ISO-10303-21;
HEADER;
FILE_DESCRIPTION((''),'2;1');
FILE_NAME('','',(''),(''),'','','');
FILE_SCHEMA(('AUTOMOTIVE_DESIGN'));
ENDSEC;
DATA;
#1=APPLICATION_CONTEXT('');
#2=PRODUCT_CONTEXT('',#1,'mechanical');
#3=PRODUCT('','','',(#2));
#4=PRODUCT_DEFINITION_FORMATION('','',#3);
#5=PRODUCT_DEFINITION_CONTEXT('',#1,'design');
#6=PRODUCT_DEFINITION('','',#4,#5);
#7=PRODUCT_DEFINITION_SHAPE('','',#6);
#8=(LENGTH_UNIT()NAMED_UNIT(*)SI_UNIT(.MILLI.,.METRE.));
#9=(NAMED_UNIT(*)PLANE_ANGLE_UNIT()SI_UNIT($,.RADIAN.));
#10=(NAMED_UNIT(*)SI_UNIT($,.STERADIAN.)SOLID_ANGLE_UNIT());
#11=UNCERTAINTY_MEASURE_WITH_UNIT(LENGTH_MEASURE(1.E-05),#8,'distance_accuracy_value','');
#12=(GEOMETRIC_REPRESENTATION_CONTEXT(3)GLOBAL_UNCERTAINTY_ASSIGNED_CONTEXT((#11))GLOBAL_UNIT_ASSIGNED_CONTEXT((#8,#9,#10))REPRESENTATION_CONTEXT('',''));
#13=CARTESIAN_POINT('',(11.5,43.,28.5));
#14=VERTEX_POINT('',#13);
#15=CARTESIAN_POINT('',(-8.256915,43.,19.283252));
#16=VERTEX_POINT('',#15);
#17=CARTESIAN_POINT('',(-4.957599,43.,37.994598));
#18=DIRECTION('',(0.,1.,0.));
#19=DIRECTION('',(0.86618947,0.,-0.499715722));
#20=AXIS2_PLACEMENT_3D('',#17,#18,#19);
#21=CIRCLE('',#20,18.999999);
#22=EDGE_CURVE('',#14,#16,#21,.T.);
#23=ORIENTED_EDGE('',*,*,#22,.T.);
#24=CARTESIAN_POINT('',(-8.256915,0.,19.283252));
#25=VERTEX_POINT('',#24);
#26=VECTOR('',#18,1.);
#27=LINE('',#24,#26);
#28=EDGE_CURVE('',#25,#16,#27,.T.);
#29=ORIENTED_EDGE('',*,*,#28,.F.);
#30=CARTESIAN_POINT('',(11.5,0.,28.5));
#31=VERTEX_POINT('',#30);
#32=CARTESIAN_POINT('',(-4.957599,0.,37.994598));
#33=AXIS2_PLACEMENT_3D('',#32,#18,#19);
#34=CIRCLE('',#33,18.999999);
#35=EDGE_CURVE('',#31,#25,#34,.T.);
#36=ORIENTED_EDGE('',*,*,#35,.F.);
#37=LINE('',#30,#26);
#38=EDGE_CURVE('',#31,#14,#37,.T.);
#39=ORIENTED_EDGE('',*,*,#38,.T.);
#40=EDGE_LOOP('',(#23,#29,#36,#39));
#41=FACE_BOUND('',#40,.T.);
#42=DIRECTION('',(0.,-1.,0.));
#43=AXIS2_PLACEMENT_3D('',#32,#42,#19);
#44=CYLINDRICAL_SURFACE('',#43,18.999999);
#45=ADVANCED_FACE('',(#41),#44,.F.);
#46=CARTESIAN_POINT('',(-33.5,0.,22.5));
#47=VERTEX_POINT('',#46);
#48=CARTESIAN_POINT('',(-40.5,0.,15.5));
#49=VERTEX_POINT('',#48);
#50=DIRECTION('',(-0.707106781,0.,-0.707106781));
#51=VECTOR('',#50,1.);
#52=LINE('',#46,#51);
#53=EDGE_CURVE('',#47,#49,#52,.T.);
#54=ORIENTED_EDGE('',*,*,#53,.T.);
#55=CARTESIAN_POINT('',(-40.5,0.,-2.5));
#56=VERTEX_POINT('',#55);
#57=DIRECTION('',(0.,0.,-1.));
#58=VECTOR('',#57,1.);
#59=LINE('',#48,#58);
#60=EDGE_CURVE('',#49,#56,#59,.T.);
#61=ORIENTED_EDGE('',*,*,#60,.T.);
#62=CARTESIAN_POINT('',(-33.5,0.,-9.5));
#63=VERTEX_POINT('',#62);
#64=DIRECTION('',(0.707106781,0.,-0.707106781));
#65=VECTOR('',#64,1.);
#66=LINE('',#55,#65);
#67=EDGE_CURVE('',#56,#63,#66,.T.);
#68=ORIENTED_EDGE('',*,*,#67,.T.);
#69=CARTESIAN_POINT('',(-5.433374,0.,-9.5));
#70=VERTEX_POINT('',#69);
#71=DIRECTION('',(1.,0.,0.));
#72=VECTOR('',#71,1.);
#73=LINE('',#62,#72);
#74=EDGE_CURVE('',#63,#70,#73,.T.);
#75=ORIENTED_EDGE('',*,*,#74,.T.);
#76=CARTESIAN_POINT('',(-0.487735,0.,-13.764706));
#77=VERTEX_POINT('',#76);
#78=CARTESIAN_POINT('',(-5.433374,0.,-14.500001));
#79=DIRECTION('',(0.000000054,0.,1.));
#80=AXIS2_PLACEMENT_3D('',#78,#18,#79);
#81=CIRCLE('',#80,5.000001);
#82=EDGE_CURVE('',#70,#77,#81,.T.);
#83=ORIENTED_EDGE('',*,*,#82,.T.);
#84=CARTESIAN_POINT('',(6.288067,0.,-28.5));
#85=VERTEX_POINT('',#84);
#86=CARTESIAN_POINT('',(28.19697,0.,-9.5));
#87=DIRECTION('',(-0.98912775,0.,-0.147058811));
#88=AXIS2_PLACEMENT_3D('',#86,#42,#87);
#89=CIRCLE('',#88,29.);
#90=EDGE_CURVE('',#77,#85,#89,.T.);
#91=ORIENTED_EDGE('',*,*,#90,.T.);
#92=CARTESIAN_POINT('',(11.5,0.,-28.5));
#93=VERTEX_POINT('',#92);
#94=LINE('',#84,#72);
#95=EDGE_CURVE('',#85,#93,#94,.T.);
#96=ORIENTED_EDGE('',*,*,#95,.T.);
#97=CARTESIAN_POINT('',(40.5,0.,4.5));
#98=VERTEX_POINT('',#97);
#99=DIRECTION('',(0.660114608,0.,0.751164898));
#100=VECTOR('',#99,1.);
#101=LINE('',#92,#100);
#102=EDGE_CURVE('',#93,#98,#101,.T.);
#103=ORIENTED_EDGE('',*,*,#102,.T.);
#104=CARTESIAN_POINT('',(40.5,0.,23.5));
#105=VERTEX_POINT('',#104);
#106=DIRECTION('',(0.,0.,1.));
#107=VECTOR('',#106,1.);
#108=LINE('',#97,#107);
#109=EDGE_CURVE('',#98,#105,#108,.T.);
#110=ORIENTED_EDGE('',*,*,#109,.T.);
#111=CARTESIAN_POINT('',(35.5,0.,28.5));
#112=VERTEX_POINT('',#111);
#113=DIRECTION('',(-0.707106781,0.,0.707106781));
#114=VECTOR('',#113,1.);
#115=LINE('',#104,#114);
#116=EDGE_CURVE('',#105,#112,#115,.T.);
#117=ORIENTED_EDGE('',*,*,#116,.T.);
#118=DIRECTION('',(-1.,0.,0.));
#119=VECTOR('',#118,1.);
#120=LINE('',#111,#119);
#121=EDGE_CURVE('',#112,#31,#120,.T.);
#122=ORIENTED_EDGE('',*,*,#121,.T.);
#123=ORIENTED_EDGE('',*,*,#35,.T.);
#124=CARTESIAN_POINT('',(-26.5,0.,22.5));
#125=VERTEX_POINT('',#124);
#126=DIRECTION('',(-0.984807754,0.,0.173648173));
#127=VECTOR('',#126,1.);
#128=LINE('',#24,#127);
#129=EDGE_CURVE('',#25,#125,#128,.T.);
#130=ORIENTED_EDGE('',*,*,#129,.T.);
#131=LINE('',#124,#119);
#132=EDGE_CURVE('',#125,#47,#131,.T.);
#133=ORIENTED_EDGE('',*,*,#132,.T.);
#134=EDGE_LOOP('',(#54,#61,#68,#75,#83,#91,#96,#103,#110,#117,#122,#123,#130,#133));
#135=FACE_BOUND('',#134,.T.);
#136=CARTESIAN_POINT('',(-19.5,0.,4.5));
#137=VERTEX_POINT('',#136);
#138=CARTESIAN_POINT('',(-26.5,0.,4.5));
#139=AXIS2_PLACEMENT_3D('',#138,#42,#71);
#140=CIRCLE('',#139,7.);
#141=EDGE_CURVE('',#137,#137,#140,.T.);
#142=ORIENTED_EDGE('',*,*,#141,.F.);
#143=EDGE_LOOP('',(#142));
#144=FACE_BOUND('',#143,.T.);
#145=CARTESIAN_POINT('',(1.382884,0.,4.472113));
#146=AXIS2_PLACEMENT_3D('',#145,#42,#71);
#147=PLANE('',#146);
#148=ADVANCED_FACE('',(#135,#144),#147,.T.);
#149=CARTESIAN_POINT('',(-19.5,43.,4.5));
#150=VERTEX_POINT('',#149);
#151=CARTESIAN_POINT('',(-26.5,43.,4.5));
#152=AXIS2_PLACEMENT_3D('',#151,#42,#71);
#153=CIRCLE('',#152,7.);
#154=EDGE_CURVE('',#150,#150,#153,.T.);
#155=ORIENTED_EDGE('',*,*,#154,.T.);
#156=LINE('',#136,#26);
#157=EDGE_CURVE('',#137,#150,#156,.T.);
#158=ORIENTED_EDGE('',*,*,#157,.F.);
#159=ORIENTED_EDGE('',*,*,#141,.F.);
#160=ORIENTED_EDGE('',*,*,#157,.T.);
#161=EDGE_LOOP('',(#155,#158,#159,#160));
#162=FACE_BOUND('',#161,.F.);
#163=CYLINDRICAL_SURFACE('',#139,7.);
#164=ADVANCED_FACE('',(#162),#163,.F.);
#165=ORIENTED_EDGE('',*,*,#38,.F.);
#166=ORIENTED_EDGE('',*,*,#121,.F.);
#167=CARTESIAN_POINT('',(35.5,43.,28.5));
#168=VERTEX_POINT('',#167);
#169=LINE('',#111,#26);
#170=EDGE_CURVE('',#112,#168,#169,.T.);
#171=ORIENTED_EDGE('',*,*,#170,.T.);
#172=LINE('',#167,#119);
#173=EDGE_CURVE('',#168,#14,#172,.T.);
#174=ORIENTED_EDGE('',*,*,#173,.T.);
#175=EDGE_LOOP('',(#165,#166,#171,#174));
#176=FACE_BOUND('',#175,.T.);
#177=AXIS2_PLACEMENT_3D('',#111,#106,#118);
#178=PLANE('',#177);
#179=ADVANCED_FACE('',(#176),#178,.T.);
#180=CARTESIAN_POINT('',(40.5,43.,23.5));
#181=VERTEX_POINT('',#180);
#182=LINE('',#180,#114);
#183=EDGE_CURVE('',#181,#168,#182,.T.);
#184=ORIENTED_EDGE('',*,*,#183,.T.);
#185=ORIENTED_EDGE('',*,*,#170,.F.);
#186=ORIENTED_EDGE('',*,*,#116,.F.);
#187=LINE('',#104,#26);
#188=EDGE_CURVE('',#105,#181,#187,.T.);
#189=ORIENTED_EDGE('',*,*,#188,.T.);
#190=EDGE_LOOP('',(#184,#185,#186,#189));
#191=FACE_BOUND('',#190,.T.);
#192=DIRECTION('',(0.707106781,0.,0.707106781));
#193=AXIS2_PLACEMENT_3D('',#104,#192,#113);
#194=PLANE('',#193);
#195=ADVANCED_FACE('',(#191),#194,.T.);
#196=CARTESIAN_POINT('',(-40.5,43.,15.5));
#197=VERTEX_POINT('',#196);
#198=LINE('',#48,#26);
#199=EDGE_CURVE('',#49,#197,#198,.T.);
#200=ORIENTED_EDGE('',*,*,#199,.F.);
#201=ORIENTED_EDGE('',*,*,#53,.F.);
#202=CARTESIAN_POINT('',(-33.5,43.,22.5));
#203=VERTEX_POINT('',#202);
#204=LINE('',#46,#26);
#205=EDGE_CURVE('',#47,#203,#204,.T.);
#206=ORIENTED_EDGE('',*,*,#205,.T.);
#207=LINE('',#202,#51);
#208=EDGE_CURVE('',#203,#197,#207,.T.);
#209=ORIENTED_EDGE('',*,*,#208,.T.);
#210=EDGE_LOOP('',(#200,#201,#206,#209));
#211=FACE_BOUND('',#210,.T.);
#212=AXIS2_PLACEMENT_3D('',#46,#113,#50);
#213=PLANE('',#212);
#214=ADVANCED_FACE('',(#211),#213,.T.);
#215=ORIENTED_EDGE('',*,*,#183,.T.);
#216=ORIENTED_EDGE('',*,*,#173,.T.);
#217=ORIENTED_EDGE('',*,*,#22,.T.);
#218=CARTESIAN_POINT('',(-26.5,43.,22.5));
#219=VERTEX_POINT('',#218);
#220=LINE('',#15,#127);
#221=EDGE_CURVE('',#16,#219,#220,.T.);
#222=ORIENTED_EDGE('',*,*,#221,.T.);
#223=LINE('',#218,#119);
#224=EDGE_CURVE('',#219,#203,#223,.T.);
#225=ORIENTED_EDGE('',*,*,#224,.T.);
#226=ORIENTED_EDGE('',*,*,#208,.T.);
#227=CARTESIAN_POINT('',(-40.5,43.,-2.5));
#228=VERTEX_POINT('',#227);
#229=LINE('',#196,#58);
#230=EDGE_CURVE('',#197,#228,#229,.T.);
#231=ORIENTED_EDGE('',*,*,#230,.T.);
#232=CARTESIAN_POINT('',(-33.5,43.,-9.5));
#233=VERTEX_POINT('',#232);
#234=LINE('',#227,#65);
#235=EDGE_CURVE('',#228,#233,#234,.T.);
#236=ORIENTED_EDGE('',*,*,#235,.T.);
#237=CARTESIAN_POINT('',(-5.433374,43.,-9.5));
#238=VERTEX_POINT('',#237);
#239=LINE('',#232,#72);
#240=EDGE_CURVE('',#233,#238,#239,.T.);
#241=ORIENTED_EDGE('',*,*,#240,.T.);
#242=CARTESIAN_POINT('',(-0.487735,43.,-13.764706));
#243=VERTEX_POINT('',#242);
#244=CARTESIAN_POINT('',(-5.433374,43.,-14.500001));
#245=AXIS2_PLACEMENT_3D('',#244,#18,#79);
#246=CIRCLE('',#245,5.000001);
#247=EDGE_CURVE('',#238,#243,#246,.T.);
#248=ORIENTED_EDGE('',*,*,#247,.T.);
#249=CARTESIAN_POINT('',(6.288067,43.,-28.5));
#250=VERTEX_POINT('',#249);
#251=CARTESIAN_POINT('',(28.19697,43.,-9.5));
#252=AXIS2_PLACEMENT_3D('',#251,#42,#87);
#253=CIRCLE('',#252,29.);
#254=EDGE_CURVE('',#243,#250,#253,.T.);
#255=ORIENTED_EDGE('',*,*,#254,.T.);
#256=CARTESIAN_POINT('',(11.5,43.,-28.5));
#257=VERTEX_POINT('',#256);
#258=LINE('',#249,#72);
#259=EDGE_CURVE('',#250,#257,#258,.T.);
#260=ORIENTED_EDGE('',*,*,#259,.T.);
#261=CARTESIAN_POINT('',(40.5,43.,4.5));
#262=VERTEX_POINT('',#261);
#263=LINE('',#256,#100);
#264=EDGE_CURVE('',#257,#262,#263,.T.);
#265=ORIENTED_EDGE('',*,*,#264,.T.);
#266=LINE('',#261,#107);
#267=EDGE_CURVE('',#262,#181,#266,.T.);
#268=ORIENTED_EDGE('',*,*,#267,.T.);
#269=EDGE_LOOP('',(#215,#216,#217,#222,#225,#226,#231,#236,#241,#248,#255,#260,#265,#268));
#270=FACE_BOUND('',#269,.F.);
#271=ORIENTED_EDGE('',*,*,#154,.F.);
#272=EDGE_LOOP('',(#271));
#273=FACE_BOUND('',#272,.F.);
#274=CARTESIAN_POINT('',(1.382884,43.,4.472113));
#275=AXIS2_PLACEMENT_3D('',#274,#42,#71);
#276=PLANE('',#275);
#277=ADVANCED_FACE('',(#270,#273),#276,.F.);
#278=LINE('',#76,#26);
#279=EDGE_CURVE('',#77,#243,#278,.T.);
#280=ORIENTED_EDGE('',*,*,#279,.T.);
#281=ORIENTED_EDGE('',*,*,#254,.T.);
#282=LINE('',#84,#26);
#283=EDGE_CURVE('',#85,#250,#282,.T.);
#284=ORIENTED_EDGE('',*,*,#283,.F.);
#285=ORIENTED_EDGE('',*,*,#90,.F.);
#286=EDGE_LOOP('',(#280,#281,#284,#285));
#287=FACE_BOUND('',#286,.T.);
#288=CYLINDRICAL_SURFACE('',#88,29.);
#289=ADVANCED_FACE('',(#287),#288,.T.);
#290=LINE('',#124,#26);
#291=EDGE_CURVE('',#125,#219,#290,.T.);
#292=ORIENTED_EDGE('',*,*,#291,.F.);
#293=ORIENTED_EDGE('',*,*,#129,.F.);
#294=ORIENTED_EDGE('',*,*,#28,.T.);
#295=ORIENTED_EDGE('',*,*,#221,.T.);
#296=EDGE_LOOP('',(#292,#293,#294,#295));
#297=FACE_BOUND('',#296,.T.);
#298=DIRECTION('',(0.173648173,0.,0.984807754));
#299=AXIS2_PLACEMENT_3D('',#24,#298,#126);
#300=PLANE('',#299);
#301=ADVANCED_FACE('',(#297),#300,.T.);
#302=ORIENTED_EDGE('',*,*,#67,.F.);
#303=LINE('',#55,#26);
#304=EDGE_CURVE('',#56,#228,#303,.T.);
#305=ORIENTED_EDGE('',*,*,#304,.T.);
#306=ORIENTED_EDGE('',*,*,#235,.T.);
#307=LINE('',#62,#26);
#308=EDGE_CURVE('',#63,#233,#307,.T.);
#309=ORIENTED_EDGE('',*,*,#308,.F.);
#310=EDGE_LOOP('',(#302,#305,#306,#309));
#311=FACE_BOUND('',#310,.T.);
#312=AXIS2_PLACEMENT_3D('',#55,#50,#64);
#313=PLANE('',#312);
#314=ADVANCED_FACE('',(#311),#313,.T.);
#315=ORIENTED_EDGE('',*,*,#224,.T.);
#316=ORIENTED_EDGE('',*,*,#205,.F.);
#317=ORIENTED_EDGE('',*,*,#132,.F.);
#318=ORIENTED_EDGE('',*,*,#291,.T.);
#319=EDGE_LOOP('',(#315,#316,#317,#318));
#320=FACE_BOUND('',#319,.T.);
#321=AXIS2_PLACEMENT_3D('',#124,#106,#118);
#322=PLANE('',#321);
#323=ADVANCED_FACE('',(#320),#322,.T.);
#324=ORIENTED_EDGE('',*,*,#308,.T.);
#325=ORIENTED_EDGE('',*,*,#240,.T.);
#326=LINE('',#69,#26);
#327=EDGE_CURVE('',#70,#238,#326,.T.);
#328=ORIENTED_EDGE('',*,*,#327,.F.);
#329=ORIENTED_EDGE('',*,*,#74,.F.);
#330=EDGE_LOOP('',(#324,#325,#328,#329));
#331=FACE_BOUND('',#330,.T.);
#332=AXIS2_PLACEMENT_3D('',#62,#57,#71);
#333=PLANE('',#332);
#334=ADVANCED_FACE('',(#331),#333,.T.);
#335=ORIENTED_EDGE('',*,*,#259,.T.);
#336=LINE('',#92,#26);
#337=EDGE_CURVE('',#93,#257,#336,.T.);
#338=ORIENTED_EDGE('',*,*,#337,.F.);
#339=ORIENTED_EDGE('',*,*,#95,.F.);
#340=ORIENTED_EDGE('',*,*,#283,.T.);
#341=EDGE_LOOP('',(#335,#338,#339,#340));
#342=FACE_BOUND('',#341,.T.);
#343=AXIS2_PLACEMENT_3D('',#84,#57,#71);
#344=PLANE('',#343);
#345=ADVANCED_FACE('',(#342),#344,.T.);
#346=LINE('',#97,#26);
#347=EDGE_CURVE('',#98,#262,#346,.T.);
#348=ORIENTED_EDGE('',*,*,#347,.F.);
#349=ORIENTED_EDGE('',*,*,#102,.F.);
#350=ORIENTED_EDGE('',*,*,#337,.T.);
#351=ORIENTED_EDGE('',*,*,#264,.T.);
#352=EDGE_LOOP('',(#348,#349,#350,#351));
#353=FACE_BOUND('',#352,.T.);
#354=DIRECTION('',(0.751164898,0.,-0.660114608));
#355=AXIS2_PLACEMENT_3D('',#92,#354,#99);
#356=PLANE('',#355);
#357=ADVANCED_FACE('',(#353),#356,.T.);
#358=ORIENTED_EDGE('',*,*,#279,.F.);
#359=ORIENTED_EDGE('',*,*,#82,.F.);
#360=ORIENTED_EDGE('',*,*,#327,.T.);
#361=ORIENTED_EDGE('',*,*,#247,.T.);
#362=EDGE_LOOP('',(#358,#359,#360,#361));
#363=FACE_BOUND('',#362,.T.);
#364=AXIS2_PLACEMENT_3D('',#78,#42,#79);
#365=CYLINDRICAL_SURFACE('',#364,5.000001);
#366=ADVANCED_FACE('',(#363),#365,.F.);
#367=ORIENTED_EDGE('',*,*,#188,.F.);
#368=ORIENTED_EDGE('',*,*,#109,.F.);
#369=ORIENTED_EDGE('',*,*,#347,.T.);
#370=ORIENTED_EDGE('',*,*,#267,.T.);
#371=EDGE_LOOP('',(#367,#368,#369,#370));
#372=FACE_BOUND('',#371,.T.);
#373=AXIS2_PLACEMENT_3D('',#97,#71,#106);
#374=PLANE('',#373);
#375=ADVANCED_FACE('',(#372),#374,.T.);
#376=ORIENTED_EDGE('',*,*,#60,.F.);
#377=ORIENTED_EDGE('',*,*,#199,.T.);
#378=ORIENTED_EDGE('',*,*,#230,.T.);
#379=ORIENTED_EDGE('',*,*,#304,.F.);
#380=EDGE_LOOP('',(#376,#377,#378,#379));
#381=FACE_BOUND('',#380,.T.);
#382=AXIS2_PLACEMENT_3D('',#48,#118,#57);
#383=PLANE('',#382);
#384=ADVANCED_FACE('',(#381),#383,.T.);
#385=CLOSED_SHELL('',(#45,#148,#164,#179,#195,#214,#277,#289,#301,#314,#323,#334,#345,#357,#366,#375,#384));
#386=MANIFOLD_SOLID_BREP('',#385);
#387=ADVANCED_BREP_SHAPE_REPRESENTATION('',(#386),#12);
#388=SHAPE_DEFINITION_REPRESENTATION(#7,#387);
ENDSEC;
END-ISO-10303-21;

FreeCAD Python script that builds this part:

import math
import FreeCAD as App
import Part
import Sketcher
Q = App.Units.Quantity

doc = App.newDocument("Part")
body = doc.addObject("PartDesign::Body", "Body")

# Sketch on XZ plane
sketch1 = doc.addObject("Sketcher::SketchObject", "Sketch")
body.addObject(sketch1)
sketch1.AttachmentSupport = (doc.XZ_Plane, [""])
sketch1.MapMode = "FlatFace"
sketch1.addGeometry(Part.LineSegment(App.Vector(40, 24, 0), App.Vector(36, 28, 0)), False)
sketch1.addGeometry(Part.LineSegment(App.Vector(36, 28, 0), App.Vector(12, 28, 0)), False)
sketch1.addGeometry(Part.ArcOfCircle(Part.Circle(App.Vector(-5, 38, 0), App.Vector(0, 0, 1), 19), math.radians(-100), math.radians(-30)), False)
sketch1.addGeometry(Part.LineSegment(App.Vector(-8, 19, 0), App.Vector(-26, 22, 0)), False)
sketch1.addGeometry(Part.LineSegment(App.Vector(-26, 22, 0), App.Vector(-34, 22, 0)), False)
sketch1.addGeometry(Part.LineSegment(App.Vector(-34, 22, 0), App.Vector(-40, 16, 0)), False)
sketch1.addGeometry(Part.LineSegment(App.Vector(-40, 16, 0), App.Vector(-40, -2, 0)), False)
sketch1.addGeometry(Part.LineSegment(App.Vector(-40, -2, 0), App.Vector(-34, -10, 0)), False)
sketch1.addGeometry(Part.LineSegment(App.Vector(-34, -10, 0), App.Vector(-5, -10, 0)), False)
sketch1.addGeometry(Part.ArcOfCircle(Part.Circle(App.Vector(-5, -15, 0), App.Vector(0, 0, 1), 5), math.radians(8), math.radians(90)), False)
sketch1.addGeometry(Part.ArcOfCircle(Part.Circle(App.Vector(28, -10, 0), App.Vector(0, 0, 1), 29), math.radians(-172), math.radians(-139)), False)
sketch1.addGeometry(Part.LineSegment(App.Vector(6, -28, 0), App.Vector(12, -28, 0)), False)
sketch1.addGeometry(Part.LineSegment(App.Vector(12, -28, 0), App.Vector(40, 4, 0)), False)
sketch1.addGeometry(Part.LineSegment(App.Vector(40, 4, 0), App.Vector(40, 24, 0)), False)
sketch1.addGeometry(Part.Circle(App.Vector(-26, 4, 0), App.Vector(0, 0, 1), 7), False)
sketch1.addConstraint(Sketcher.Constraint("Coincident", 0, 2, 1, 1))
sketch1.addConstraint(Sketcher.Constraint("Coincident", 1, 2, 2, 2))
sketch1.addConstraint(Sketcher.Constraint("Tangent", 2, 1, 3, 1))
sketch1.addConstraint(Sketcher.Constraint("Coincident", 3, 2, 4, 1))
sketch1.addConstraint(Sketcher.Constraint("Coincident", 4, 2, 5, 1))
sketch1.addConstraint(Sketcher.Constraint("Coincident", 5, 2, 6, 1))
sketch1.addConstraint(Sketcher.Constraint("Coincident", 6, 2, 7, 1))
sketch1.addConstraint(Sketcher.Constraint("Coincident", 7, 2, 8, 1))
sketch1.addConstraint(Sketcher.Constraint("Tangent", 8, 2, 9, 2))
sketch1.addConstraint(Sketcher.Constraint("Tangent", 9, 1, 10, 1))
sketch1.addConstraint(Sketcher.Constraint("Coincident", 10, 2, 11, 1))
sketch1.addConstraint(Sketcher.Constraint("Coincident", 11, 2, 12, 1))
sketch1.addConstraint(Sketcher.Constraint("Coincident", 12, 2, 13, 1))
sketch1.addConstraint(Sketcher.Constraint("Coincident", 13, 2, 0, 1))
sketch1.addConstraint(Sketcher.Constraint("Horizontal", 1))
sketch1.addConstraint(Sketcher.Constraint("Horizontal", 4))
sketch1.addConstraint(Sketcher.Constraint("Vertical", 6))
sketch1.addConstraint(Sketcher.Constraint("Horizontal", 8))
sketch1.addConstraint(Sketcher.Constraint("Horizontal", 11))
sketch1.addConstraint(Sketcher.Constraint("Vertical", 13))
sketch1.addConstraint(Sketcher.Constraint("Symmetric", 1, 2, 11, 2, -1))
sketch1.addConstraint(Sketcher.Constraint("Perpendicular", 0, 5))
sketch1.addConstraint(Sketcher.Constraint("Perpendicular", 5, 7))
sketch1.addConstraint(Sketcher.Constraint("Horizontal", 10, 3, 7, 2))
sketch1.addConstraint(Sketcher.Constraint("Horizontal", 14, 3, 12, 2))
sketch1.addConstraint(Sketcher.Constraint("Vertical", 14, 3, 3, 2))
sketch1.addConstraint(Sketcher.Constraint("Vertical", 4, 2, 7, 2))
sketch1.addConstraint(Sketcher.Constraint("Equal", 5, 7))
sketch1.addConstraint(Sketcher.Constraint("Diameter", 14, Q("14 mm")))
sketch1.addConstraint(Sketcher.Constraint("Radius", 2, Q("18.999999 mm")))
sketch1.addConstraint(Sketcher.Constraint("Radius", 9, Q("5.000001 mm")))
sketch1.addConstraint(Sketcher.Constraint("Radius", 10, Q("29 mm")))
sketch1.addConstraint(Sketcher.Constraint("DistanceX", 1, 2, 1, 1, Q("24 mm")))
sketch1.addConstraint(Sketcher.Constraint("DistanceX", 4, 2, 4, 1, Q("7 mm")))
sketch1.addConstraint(Sketcher.Constraint("DistanceY", 6, 2, 6, 1, Q("18 mm")))
sketch1.addConstraint(Sketcher.Constraint("DistanceY", 13, 1, 13, 2, Q("19 mm")))
sketch1.addConstraint(Sketcher.Constraint("Angle", 3, Q("170 deg")))
sketch1.addConstraint(Sketcher.Constraint("DistanceY", 9, 3, 14, 3, Q("19.000001 mm")))
sketch1.addConstraint(Sketcher.Constraint("DistanceY", 10, 3, 0, 2, Q("38 mm")))
sketch1.addConstraint(Sketcher.Constraint("DistanceX", 14, 3, 0, 2, Q("62 mm")))
sketch1.addConstraint(Sketcher.Constraint("DistanceY", 14, 3, 3, 2, Q("18 mm")))
sketch1.addConstraint(Sketcher.Constraint("DistanceY", 10, 2, 9, 3, Q("13.999999 mm")))
sketch1.addConstraint(Sketcher.Constraint("DistanceX", 14, 3, -1, 1, Q("26.5 mm")))
sketch1.addConstraint(Sketcher.Constraint("DistanceX", 8, 1, 8, 2, Q("28.066626 mm")))
pad1 = doc.addObject("PartDesign::Pad", "Pad")
body.addObject(pad1)
pad1.Profile = sketch1
pad1.Length = 43
pad1.Reversed = True

doc.recompute()
